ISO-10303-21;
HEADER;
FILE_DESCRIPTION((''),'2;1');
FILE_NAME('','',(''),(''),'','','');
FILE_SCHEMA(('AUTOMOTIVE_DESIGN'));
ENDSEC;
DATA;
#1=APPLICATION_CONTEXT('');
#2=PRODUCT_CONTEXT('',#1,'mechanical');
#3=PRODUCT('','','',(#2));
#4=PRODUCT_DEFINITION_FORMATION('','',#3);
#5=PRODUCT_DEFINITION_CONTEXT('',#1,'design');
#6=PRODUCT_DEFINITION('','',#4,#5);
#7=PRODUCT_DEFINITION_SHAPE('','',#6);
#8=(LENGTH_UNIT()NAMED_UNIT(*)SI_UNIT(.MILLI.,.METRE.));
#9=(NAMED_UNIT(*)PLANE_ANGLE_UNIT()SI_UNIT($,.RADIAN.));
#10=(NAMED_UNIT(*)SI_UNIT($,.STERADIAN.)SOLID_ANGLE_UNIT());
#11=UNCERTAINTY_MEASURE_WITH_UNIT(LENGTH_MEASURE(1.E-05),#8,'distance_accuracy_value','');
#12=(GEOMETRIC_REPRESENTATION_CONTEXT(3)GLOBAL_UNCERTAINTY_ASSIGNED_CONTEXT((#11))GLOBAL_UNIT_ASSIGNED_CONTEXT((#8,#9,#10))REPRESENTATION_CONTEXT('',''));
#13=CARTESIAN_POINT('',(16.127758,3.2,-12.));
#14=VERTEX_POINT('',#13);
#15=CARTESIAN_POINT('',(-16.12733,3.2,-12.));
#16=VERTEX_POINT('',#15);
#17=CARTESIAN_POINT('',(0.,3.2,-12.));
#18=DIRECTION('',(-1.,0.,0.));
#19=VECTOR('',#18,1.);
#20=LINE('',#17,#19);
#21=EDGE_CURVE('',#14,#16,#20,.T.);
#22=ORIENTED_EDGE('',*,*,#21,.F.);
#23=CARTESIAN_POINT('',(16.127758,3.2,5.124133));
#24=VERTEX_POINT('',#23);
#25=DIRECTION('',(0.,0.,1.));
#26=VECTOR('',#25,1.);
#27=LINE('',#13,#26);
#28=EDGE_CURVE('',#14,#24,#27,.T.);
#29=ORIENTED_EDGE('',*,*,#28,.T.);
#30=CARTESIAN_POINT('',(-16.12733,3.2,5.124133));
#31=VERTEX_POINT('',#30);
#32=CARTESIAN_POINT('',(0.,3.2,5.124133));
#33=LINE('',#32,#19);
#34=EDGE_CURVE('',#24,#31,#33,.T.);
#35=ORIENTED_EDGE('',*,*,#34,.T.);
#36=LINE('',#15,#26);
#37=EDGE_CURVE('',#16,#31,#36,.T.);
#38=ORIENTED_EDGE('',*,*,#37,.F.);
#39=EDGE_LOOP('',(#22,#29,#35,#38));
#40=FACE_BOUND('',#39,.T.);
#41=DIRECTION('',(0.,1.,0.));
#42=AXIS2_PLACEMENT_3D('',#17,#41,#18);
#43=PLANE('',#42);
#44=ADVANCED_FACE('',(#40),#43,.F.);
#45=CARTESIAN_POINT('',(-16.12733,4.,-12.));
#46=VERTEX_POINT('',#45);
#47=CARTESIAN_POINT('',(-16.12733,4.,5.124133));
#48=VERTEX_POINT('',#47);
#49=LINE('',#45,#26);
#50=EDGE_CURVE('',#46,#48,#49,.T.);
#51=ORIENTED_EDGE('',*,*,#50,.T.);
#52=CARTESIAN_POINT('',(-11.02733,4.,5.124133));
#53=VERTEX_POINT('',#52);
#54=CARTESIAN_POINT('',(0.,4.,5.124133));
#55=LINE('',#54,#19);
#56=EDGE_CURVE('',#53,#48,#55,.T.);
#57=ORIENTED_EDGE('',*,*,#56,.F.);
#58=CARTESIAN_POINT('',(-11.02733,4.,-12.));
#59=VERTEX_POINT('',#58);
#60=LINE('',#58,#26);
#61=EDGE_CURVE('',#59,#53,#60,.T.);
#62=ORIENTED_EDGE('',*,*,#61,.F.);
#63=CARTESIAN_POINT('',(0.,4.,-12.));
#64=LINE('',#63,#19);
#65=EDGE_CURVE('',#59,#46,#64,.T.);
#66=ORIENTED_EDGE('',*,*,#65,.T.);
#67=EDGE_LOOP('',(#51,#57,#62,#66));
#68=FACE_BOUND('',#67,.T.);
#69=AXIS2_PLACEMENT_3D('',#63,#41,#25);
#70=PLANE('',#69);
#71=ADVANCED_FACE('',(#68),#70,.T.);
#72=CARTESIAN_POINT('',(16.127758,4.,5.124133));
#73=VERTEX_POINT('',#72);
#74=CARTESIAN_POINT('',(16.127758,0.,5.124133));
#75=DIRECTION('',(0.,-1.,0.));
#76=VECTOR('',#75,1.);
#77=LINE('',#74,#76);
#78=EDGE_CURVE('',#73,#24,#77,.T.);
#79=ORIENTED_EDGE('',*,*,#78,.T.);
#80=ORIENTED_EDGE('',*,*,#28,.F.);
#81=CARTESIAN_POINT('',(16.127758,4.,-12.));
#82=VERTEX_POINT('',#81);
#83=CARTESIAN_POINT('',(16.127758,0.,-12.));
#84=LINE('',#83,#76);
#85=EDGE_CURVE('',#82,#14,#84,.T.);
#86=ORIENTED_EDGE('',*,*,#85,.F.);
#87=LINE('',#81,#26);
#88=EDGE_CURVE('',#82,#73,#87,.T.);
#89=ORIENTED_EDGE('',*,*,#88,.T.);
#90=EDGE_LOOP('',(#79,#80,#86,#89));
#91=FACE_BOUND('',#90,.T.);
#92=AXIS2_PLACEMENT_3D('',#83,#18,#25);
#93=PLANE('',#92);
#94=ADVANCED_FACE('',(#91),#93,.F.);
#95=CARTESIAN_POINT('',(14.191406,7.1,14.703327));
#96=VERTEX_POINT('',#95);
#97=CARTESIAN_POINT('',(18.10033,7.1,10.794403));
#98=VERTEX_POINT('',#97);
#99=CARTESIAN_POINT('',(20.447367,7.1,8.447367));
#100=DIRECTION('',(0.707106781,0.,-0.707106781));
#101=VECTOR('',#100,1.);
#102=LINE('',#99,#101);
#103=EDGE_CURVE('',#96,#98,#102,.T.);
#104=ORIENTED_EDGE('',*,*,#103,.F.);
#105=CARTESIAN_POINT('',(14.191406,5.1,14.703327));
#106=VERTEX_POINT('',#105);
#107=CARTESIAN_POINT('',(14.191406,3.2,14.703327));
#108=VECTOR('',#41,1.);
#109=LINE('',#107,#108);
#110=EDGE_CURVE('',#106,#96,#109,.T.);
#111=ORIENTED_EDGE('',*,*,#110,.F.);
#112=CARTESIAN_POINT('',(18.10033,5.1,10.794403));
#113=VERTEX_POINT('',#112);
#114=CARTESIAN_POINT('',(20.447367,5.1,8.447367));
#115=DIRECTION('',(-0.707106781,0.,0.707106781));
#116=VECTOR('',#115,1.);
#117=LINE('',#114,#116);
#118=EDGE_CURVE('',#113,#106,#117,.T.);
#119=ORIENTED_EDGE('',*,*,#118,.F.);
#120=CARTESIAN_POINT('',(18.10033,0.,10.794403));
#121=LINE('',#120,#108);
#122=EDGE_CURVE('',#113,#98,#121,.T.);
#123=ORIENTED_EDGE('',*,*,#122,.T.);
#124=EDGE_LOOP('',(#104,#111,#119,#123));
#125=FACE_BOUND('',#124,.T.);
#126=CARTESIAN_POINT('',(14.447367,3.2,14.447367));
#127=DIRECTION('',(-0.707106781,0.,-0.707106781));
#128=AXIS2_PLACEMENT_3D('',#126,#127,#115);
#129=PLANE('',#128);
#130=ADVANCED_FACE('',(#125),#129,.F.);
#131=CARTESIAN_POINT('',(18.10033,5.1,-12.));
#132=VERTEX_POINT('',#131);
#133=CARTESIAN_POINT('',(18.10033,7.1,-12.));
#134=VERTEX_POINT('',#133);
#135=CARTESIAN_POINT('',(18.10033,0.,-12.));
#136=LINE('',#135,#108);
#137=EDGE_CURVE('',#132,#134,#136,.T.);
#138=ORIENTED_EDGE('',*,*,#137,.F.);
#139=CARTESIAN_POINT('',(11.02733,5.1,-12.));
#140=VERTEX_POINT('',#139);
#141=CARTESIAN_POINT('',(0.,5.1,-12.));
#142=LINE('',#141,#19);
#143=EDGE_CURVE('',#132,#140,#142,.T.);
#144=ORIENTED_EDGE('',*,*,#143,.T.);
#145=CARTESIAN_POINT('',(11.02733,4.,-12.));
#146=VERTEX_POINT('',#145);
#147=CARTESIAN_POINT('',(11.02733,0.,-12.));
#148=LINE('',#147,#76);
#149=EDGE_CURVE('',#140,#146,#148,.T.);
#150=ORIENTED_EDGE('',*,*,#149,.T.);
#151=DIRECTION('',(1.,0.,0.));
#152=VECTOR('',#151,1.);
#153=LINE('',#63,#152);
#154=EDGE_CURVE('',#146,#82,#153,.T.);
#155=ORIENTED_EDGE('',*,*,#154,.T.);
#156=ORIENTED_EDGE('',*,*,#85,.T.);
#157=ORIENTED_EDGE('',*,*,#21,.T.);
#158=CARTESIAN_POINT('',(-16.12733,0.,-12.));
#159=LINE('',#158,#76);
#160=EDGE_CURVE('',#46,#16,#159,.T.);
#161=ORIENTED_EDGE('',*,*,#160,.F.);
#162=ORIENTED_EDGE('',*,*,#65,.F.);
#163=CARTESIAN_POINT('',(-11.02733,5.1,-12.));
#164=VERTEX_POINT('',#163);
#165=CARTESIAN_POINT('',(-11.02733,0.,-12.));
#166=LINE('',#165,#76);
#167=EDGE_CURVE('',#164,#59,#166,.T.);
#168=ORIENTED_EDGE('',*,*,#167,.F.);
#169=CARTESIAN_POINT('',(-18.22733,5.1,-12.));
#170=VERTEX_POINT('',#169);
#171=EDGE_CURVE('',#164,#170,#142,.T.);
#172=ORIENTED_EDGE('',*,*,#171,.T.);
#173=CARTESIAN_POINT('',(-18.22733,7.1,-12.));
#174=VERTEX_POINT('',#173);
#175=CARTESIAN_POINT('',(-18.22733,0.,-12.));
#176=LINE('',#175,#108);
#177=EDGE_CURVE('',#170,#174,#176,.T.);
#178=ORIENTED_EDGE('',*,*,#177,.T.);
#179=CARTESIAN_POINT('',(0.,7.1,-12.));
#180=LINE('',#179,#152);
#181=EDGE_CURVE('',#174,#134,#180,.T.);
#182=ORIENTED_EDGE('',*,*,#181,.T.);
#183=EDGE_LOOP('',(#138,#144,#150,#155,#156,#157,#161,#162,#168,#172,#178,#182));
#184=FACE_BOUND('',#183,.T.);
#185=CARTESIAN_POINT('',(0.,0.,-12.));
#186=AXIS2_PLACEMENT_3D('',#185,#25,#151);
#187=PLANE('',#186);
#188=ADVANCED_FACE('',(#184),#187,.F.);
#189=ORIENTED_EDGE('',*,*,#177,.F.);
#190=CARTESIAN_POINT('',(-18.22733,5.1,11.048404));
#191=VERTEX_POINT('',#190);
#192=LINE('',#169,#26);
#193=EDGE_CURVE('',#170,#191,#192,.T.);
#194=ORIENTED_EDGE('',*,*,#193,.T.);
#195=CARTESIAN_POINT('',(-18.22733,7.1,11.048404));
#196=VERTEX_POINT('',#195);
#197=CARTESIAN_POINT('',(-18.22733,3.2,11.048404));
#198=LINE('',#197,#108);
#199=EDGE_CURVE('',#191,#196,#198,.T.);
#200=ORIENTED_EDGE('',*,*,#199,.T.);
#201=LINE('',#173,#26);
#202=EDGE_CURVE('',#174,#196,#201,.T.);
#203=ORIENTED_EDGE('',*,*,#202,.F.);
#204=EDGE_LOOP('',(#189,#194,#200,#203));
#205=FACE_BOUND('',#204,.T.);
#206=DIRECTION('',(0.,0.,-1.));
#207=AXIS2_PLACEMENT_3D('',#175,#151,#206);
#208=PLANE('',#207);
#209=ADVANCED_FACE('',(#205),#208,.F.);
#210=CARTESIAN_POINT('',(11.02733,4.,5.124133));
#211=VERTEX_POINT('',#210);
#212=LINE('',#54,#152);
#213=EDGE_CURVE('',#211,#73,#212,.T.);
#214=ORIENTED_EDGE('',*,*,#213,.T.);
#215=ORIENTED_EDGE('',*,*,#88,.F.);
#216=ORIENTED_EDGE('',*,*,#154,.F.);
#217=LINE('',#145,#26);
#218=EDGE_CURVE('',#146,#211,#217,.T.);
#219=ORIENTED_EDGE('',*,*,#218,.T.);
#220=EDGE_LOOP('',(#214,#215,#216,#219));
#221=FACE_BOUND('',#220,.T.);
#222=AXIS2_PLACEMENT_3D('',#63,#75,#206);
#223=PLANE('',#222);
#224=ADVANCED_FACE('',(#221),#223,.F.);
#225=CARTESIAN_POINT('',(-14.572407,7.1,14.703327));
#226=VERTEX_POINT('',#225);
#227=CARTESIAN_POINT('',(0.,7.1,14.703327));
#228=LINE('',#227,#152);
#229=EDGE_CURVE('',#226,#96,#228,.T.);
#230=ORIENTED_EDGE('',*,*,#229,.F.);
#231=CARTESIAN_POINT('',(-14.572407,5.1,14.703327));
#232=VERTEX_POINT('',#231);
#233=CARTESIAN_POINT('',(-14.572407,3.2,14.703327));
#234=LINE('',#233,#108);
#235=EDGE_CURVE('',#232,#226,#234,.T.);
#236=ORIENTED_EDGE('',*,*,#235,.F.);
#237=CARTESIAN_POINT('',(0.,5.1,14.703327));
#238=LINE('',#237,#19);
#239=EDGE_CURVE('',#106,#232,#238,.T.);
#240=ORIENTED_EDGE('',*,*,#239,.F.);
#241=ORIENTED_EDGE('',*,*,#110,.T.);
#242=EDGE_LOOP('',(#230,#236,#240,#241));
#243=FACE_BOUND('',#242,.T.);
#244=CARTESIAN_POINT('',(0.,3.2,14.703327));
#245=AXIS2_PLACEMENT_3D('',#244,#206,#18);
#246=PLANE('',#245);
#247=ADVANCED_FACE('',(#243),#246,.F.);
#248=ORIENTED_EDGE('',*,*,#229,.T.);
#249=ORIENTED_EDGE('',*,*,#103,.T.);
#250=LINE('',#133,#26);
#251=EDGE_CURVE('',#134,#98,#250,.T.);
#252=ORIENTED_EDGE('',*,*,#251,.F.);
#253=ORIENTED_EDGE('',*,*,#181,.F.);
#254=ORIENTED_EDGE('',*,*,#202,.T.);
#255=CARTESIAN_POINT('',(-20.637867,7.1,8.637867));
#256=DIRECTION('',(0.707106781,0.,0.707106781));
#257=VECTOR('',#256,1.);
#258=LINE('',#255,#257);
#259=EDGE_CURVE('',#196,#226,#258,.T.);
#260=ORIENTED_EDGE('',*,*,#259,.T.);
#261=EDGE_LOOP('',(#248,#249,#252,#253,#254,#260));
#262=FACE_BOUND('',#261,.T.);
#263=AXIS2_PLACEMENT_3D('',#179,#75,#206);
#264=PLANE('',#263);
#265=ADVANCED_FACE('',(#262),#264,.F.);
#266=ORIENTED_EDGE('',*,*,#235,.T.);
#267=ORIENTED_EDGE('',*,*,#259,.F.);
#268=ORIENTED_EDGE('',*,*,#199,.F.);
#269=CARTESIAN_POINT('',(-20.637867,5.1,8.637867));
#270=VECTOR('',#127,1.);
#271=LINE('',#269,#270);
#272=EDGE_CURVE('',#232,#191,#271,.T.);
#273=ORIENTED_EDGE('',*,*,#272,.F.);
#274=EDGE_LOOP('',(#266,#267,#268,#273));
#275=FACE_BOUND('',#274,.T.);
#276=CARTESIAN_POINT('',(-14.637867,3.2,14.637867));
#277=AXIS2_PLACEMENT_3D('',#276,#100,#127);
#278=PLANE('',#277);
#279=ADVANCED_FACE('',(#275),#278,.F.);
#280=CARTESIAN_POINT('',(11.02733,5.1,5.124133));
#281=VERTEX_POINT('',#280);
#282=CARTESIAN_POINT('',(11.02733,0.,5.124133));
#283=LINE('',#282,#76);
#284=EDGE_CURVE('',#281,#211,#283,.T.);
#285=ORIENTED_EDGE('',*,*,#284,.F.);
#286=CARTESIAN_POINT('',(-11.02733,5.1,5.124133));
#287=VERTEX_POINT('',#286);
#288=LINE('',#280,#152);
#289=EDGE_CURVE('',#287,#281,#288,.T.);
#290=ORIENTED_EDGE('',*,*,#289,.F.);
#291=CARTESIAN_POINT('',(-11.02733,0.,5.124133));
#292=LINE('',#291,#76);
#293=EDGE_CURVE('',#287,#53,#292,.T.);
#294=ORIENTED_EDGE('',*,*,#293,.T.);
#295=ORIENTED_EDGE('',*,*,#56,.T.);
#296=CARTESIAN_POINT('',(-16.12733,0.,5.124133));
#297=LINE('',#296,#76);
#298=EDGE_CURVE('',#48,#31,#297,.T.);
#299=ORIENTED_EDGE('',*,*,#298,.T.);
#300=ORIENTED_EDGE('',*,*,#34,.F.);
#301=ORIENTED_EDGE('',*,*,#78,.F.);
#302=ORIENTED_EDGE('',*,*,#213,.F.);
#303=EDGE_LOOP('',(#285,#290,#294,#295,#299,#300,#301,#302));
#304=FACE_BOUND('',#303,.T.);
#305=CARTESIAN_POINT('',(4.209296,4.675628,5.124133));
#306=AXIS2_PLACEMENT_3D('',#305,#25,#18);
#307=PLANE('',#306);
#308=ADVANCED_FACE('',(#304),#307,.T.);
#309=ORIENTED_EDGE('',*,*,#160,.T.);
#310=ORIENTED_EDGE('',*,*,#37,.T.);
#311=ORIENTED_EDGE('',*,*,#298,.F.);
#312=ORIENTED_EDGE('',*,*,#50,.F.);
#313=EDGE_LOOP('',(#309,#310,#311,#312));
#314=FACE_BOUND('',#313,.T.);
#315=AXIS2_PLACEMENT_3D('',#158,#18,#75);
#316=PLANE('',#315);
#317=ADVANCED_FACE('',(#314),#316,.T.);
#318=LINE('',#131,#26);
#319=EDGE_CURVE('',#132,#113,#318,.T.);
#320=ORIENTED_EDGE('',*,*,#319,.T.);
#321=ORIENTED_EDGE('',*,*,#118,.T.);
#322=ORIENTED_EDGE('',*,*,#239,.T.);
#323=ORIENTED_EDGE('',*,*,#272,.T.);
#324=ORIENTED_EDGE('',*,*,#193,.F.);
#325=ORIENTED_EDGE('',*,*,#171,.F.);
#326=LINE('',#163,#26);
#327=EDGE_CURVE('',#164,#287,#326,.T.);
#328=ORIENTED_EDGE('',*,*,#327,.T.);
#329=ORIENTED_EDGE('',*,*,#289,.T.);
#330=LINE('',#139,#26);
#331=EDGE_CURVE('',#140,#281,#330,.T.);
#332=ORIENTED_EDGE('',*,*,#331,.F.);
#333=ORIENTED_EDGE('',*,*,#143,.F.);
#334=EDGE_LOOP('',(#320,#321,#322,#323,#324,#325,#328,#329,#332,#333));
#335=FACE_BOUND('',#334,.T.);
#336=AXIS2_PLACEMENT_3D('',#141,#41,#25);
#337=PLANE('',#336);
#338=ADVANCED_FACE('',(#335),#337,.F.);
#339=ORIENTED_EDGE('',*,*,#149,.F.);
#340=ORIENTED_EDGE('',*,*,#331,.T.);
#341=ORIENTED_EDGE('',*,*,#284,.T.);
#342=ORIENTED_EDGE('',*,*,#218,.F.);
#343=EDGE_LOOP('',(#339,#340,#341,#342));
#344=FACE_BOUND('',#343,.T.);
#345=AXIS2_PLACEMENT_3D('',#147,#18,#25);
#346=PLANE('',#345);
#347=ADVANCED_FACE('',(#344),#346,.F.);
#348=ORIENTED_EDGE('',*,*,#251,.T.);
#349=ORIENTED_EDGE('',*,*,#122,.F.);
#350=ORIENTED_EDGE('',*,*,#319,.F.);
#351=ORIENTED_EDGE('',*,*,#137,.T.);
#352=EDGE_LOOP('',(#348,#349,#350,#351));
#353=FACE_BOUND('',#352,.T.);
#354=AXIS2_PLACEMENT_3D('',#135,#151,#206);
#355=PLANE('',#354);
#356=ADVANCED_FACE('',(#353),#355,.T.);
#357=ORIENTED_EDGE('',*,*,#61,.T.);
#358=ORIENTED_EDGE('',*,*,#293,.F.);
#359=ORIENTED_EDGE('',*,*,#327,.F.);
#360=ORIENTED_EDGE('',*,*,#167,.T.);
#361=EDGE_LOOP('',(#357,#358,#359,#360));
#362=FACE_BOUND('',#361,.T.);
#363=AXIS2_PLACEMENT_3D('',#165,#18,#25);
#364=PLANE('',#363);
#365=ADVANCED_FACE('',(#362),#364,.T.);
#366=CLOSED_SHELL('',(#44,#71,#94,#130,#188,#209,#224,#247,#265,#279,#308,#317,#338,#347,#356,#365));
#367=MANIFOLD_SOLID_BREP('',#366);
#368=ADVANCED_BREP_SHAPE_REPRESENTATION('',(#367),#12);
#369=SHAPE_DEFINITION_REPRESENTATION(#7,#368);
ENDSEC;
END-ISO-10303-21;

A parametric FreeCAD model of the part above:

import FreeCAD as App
import Part
import Sketcher
from FreeCAD import Vector
Q = App.Units.Quantity


def add_polygon(sketch, points):
    """Adds a closed chain of lines whose ends are joined by coincident constraints."""
    first, n = sketch.GeometryCount, len(points)
    for a, b in zip(points, points[1:] + points[:1]):
        sketch.addGeometry(Part.LineSegment(App.Vector(*a, 0), App.Vector(*b, 0)), False)
    for i in range(n):
        sketch.addConstraint(Sketcher.Constraint("Coincident", first + i, 2, first + (i + 1) % n, 1))

doc = App.newDocument("Part")
body = doc.addObject("PartDesign::Body", "Body")

sketch1 = doc.addObject("Sketcher::SketchObject", "Sketch")
body.addObject(sketch1)
sketch1.AttachmentSupport = (doc.XY_Plane, [""])
sketch1.MapMode = "FlatFace"
add_polygon(sketch1, [(-16.1, 4), (-16.1, 3.2), (-11.1, 3.2), (11.1, 3.2), (16.1, 3.2), (16.1, 4), (11, 4), (11, 5.1), (18.1, 5.1), (18.1, 7.1), (-18.2, 7.1), (-18.2, 5.1), (-11, 5.1), (-11, 4)])
sketch1.addConstraint(Sketcher.Constraint("Vertical", 0))
sketch1.addConstraint(Sketcher.Constraint("Horizontal", 1))
sketch1.addConstraint(Sketcher.Constraint("Horizontal", 2))
sketch1.addConstraint(Sketcher.Constraint("Horizontal", 3))
sketch1.addConstraint(Sketcher.Constraint("Vertical", 4))
sketch1.addConstraint(Sketcher.Constraint("Horizontal", 5))
sketch1.addConstraint(Sketcher.Constraint("Vertical", 6))
sketch1.addConstraint(Sketcher.Constraint("Horizontal", 7))
sketch1.addConstraint(Sketcher.Constraint("Vertical", 8))
sketch1.addConstraint(Sketcher.Constraint("Horizontal", 9))
sketch1.addConstraint(Sketcher.Constraint("Vertical", 10))
sketch1.addConstraint(Sketcher.Constraint("Horizontal", 11))
sketch1.addConstraint(Sketcher.Constraint("Vertical", 12))
sketch1.addConstraint(Sketcher.Constraint("Horizontal", 13))
sketch1.addConstraint(Sketcher.Constraint("Symmetric", 6, 2, 11, 2, -2))
sketch1.addConstraint(Sketcher.Constraint("Horizontal", 5, 2, 12, 2))
sketch1.addConstraint(Sketcher.Constraint("DistanceX", 1, 1, 1, 2, 5.0))
sketch1.addConstraint(Sketcher.Constraint("DistanceY", 8, 1, 8, 2, 2.0))
sketch1.addConstraint(Sketcher.Constraint("DistanceX", 11, 1, 11, 2, 7.2))
sketch1.addConstraint(Sketcher.Constraint("DistanceX", 13, 2, 13, 1, 5.1))
sketch1.addConstraint(Sketcher.Constraint("DistanceY", 0, 2, 0, 1, 0.8))
sketch1.addConstraint(Sketcher.Constraint("DistanceY", 6, 1, 6, 2, 1.1))
sketch1.addConstraint(Sketcher.Constraint("DistanceY", -1, 1, 4, 2, 4.0))
sketch1.addConstraint(Sketcher.Constraint("DistanceX", 5, 2, 2, 2, 0.1))
sketch1.addConstraint(Sketcher.Constraint("DistanceX", 7, 1, 7, 2, 7.073))
sketch1.addConstraint(Sketcher.Constraint("DistanceX", 2, 1, 2, 2, 22.254661))
sketch1.addConstraint(Sketcher.Constraint("DistanceX", 3, 1, 3, 2, 5.000428))
pad1 = doc.addObject("PartDesign::Pad", "Pad")
body.addObject(pad1)
pad1.Profile = sketch1
pad1.Type = "TwoLengths"
pad1.Length = 5.124133
pad1.Length2 = 12

sketch2 = doc.addObject("Sketcher::SketchObject", "Sketch001")
body.addObject(sketch2)
sketch2.AttachmentSupport = (doc.XY_Plane, [""])
sketch2.MapMode = "FlatFace"
sketch2.AttachmentOffset = App.Placement(Vector(0, 0, 5.124133), App.Rotation())
add_polygon(sketch2, [(-18.2, 5.1), (18.1, 5.1), (18.1, 7.1), (-18.2, 7.1)])
sketch2.addConstraint(Sketcher.Constraint("Horizontal", 0))
sketch2.addConstraint(Sketcher.Constraint("Vertical", 1))
sketch2.addConstraint(Sketcher.Constraint("Horizontal", 2))
sketch2.addConstraint(Sketcher.Constraint("Vertical", 3))
sketch2.addConstraint(Sketcher.Constraint("DistanceY", 1, 1, 1, 2, 2.0))
sketch2.addConstraint(Sketcher.Constraint("DistanceY", -1, 1, 0, 2, 5.1))
sketch2.addConstraint(Sketcher.Constraint("DistanceX", 0, 1, 0, 2, 36.327661))
sketch2.addConstraint(Sketcher.Constraint("DistanceX", -1, 1, 0, 2, 18.10033))
pad2 = doc.addObject("PartDesign::Pad", "Pad001")
body.addObject(pad2)
pad2.Profile = sketch2
pad2.Length = 10

sketch3 = doc.addObject("Sketcher::SketchObject", "Sketch002")
body.addObject(sketch3)
sketch3.AttachmentSupport = (doc.XZ_Plane, [""])
sketch3.MapMode = "FlatFace"
sketch3.AttachmentOffset = App.Placement(Vector(0, 0, -7.1), App.Rotation())
add_polygon(sketch3, [(18.1, 5.1), (18.1, 10.8), (14.2, 14.7), (-14.6, 14.7), (-18.2, 11), (-18.2, 5.1), (-20.4, 5.4), (-20.4, 17.4), (22.5, 17.4), (22.5, 5.1)])
sketch3.addConstraint(Sketcher.Constraint("Vertical", 0))
sketch3.addConstraint(Sketcher.Constraint("Horizontal", 2))
sketch3.addConstraint(Sketcher.Constraint("Vertical", 4))
sketch3.addConstraint(Sketcher.Constraint("Vertical", 6))
sketch3.addConstraint(Sketcher.Constraint("Horizontal", 7))
sketch3.addConstraint(Sketcher.Constraint("Vertical", 8))
sketch3.addConstraint(Sketcher.Constraint("Horizontal", 9))
sketch3.addConstraint(Sketcher.Constraint("Perpendicular", 1, 3))
sketch3.addConstraint(Sketcher.Constraint("Horizontal", 4, 2, 8, 2))
sketch3.addConstraint(Sketcher.Constraint("Angle", 1, Q("135 deg")))
sketch3.addConstraint(Sketcher.Constraint("DistanceY", 0, 2, 3, 2, 0.254001))
sketch3.addConstraint(Sketcher.Constraint("DistanceX", 7, 1, 7, 2, 42.918891))
sketch3.addConstraint(Sketcher.Constraint("DistanceX", 9, 2, 9, 1, 4.440558))
sketch3.addConstraint(Sketcher.Constraint("DistanceY", 0, 1, 0, 2, 5.67027))
sketch3.addConstraint(Sketcher.Constraint("DistanceY", 6, 1, 6, 2, 11.91269))
sketch3.addConstraint(Sketcher.Constraint("DistanceY", 5, 2, 3, 2, 5.599598))
sketch3.addConstraint(Sketcher.Constraint("Distance", 5, 2.175041))
sketch3.addConstraint(Sketcher.Constraint("DistanceX", 2, 2, 2, 1, 28.763813))
sketch3.addConstraint(Sketcher.Constraint("DistanceX", -1, 1, 0, 2, 18.10033))
sketch3.addConstraint(Sketcher.Constraint("DistanceY", -1, 1, 0, 2, 10.794403))
pocket1 = doc.addObject("PartDesign::Pocket", "Pocket")
body.addObject(pocket1)
pocket1.Profile = sketch3
pocket1.Type = "ThroughAll"
pocket1.Midplane = True

doc.recompute()
